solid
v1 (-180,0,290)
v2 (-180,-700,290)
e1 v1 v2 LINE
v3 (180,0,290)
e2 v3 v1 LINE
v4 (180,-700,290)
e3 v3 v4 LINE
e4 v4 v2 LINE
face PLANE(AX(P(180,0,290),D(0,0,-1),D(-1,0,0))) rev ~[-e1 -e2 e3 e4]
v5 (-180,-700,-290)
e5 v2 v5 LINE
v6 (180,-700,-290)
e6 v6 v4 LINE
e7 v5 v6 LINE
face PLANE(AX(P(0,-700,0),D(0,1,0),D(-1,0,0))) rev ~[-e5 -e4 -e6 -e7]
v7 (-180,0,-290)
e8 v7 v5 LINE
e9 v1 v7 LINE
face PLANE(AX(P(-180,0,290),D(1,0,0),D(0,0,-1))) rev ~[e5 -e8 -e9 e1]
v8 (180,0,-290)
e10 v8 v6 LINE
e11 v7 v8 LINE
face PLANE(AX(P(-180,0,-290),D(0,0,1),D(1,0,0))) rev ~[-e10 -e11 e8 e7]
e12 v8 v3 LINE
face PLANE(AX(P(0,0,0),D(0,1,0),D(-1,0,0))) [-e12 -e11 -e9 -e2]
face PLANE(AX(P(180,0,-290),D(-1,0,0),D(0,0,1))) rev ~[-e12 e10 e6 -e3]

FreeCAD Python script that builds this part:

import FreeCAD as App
import Part
import Sketcher
from FreeCAD import Vector
Q = App.Units.Quantity


def add_polygon(sketch, points):
    """Adds a closed chain of lines whose ends are joined by coincident constraints."""
    first, n = sketch.GeometryCount, len(points)
    for a, b in zip(points, points[1:] + points[:1]):
        sketch.addGeometry(Part.LineSegment(App.Vector(*a, 0), App.Vector(*b, 0)), False)
    for i in range(n):
        sketch.addConstraint(Sketcher.Constraint("Coincident", first + i, 2, first + (i + 1) % n, 1))

doc = App.newDocument("Part")
body = doc.addObject("PartDesign::Body", "Body")

sketch1 = body.newObject("Sketcher::SketchObject", "Sketch")
sketch1.AttachmentSupport = (doc.getObject("XZ_Plane"), [""])
sketch1.MapMode = "FlatFace"
add_polygon(sketch1, [(-180, 290), (180, 290), (180, -290), (-180, -290)])
sketch1.addConstraint([
    Sketcher.Constraint("Horizontal", 0),
    Sketcher.Constraint("Vertical", 1),
    Sketcher.Constraint("Horizontal", 2),
    Sketcher.Constraint("Vertical", 3),
    Sketcher.Constraint("Symmetric", 0, 2, 2, 2, -1, 1),
    Sketcher.Constraint("DistanceX", 0, 1, 0, 2, Q("360 mm")),
    Sketcher.Constraint("DistanceY", 1, 2, 1, 1, Q("580 mm")),
])
pad1 = body.newObject("PartDesign::Pad", "Pad")
pad1.Profile = sketch1
pad1.Length = 700

doc.recompute()
